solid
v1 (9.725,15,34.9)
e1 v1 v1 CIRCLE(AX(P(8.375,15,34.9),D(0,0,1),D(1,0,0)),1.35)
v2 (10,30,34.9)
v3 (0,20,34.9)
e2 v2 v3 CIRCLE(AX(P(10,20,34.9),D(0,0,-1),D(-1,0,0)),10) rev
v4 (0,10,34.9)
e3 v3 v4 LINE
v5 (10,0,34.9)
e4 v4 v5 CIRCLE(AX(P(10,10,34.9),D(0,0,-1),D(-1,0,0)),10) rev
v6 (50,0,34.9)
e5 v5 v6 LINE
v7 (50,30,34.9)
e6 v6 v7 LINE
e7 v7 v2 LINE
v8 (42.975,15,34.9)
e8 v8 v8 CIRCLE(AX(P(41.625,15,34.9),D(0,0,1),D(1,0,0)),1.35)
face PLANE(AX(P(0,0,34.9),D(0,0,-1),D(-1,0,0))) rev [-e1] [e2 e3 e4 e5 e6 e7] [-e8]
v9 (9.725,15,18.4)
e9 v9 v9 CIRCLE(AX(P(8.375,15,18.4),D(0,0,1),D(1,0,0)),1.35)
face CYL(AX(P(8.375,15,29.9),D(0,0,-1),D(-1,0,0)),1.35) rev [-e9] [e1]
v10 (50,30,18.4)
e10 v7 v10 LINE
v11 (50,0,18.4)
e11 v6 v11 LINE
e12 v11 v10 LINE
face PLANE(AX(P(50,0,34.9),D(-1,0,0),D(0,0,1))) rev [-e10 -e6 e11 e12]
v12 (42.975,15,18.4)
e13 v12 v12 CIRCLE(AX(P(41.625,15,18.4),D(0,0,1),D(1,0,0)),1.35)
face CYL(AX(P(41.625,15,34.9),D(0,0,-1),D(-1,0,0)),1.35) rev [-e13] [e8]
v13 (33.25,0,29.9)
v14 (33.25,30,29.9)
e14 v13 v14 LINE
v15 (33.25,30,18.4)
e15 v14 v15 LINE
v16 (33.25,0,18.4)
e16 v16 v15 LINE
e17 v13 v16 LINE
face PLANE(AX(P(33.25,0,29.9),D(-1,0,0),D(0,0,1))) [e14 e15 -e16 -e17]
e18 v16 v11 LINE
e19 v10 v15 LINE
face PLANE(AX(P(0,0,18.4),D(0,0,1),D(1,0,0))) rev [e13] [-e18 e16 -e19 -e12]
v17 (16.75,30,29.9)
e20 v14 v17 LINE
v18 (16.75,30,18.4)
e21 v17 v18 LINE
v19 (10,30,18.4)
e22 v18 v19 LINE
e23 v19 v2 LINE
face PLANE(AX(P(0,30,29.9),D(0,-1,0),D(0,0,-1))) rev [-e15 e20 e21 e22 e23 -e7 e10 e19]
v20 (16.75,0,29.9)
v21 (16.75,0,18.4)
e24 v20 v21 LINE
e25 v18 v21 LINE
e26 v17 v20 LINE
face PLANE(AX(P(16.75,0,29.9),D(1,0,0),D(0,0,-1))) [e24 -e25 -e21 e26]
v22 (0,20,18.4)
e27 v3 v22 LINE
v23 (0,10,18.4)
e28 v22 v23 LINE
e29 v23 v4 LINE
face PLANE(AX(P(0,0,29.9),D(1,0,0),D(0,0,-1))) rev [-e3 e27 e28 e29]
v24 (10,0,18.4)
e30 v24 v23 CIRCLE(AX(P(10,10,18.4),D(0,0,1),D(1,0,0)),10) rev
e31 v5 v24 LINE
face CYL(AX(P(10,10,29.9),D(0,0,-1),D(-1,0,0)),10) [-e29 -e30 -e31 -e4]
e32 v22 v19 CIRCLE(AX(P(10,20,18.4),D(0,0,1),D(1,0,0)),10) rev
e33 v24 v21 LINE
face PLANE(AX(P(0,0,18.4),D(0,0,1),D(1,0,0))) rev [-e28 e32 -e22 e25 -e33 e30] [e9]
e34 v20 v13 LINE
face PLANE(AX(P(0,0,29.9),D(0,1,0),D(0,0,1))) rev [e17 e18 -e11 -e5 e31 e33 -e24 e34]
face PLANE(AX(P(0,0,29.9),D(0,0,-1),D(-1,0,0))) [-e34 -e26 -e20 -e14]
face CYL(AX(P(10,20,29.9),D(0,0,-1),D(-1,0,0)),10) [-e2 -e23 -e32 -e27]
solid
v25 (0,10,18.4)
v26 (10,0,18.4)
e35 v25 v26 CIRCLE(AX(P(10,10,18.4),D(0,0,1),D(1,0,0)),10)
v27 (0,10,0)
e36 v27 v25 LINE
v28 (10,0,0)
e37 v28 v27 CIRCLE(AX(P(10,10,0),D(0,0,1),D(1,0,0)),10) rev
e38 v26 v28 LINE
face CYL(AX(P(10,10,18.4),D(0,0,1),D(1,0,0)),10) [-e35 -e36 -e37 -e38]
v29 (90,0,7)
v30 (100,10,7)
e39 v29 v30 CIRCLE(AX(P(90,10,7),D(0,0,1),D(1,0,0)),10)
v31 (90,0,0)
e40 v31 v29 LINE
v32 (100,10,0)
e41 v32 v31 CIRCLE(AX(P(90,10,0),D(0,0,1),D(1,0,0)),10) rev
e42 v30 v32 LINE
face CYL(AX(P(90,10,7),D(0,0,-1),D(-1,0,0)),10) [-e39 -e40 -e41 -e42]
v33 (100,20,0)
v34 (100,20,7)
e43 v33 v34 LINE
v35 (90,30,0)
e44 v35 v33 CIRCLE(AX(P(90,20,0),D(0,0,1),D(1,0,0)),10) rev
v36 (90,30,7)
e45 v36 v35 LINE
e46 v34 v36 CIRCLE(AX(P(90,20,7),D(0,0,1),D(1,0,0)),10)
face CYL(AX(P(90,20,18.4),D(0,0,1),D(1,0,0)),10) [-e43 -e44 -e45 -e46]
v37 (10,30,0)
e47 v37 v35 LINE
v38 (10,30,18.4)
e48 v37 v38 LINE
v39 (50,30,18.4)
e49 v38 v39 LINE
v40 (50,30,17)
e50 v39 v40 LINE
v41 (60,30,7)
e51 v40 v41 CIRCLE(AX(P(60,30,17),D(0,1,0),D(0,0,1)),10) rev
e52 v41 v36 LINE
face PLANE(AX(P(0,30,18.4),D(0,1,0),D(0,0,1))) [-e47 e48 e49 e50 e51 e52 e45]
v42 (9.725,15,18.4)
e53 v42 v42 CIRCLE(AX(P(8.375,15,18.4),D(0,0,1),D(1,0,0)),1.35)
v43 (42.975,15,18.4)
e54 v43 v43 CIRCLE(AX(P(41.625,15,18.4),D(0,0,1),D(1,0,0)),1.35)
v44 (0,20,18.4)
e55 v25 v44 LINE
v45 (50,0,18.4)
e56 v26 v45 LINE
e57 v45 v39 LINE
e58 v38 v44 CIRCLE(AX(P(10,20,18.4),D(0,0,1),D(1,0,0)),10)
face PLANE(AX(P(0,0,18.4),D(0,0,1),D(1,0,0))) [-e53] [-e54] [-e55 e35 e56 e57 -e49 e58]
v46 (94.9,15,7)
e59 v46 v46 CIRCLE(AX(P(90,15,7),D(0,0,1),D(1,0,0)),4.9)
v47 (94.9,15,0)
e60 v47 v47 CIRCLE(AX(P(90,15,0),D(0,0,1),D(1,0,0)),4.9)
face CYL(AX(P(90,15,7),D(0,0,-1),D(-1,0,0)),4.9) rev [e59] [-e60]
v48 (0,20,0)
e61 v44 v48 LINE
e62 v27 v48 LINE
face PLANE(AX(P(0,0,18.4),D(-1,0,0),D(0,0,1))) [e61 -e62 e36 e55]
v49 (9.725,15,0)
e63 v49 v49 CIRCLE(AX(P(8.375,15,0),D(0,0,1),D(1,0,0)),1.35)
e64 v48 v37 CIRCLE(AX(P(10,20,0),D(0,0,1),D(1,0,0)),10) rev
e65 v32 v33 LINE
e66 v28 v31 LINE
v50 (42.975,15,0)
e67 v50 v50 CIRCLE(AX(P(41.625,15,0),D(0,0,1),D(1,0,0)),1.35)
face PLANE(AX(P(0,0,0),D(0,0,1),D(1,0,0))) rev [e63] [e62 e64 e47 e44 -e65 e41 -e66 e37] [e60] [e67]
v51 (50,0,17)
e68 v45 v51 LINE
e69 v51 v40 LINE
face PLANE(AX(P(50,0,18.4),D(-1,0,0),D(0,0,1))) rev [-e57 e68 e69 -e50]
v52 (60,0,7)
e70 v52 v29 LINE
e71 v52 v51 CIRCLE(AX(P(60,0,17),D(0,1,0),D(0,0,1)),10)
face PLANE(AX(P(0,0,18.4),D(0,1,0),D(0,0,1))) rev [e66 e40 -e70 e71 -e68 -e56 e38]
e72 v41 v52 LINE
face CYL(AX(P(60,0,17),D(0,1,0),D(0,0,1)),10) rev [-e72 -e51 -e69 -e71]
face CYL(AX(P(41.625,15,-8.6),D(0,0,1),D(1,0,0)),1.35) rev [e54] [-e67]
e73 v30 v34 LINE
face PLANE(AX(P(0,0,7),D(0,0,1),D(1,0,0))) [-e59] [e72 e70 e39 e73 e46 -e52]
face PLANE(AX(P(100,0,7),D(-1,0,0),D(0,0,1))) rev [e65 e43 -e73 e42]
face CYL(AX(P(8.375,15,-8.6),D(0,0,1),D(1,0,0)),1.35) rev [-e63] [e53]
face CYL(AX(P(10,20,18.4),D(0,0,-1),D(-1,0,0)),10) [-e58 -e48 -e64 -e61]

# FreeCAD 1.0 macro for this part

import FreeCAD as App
import Part
import Sketcher
Q = App.Units.Quantity


def edges_at(feature, points):
    """Names of the edges that pass closest to the given points."""
    edges = feature.Shape.Edges
    near = lambda p: min(range(len(edges)), key=lambda i: edges[i].distToShape(Part.Vertex(*p))[0])
    return sorted({f"Edge{near(p) + 1}" for p in points})

doc = App.newDocument("Part")
body = doc.addObject("PartDesign::Body", "Body")

# Sketch on XY plane
sketch1 = body.newObject("Sketcher::SketchObject", "Sketch")
sketch1.AttachmentSupport = (doc.getObject("XY_Plane"), [""])
sketch1.MapMode = "FlatFace"
sketch1.addGeometry([
    Part.LineSegment(App.Vector(0, 30, 0), App.Vector(0, 0, 0)),
    Part.LineSegment(App.Vector(0, 0, 0), App.Vector(50, 0, 0)),
    Part.LineSegment(App.Vector(50, 0, 0), App.Vector(50, 30, 0)),
    Part.LineSegment(App.Vector(50, 30, 0), App.Vector(0, 30, 0)),
], False)
sketch1.addConstraint([
    Sketcher.Constraint("Coincident", 0, 2, 1, 1),
    Sketcher.Constraint("Coincident", 1, 2, 2, 1),
    Sketcher.Constraint("Coincident", 2, 2, 3, 1),
    Sketcher.Constraint("Coincident", 3, 2, 0, 1),
    Sketcher.Constraint("Vertical", 0),
    Sketcher.Constraint("Horizontal", 1),
    Sketcher.Constraint("Vertical", 2),
    Sketcher.Constraint("Horizontal", 3),
    Sketcher.Constraint("Coincident", 0, 2, -1, 1),
    Sketcher.Constraint("DistanceX", 1, 1, 1, 2, Q("50 mm")),
    Sketcher.Constraint("DistanceY", 0, 2, 0, 1, Q("30 mm")),
])
pad1 = body.newObject("PartDesign::Pad", "Pad")
pad1.Profile = sketch1
pad1.Length = 18.4

# Sketch on XY plane
sketch2 = body.newObject("Sketcher::SketchObject", "Sketch001")
sketch2.AttachmentSupport = (doc.getObject("XY_Plane"), [""])
sketch2.MapMode = "FlatFace"
sketch2.addGeometry([
    Part.LineSegment(App.Vector(0, 30, 0), App.Vector(0, 0, 0)),  # 0
    Part.LineSegment(App.Vector(0, 0, 0), App.Vector(100, 0, 0)),  # 1
    Part.LineSegment(App.Vector(100, 0, 0), App.Vector(100, 30, 0)),  # 2
    Part.LineSegment(App.Vector(100, 30, 0), App.Vector(0, 30, 0)),  # 3
    Part.Circle(App.Vector(90, 15, 0), App.Vector(0, 0, 1), 4.9),  # 4
], False)
sketch2.addConstraint([
    Sketcher.Constraint("Coincident", 0, 2, 1, 1),
    Sketcher.Constraint("Coincident", 1, 2, 2, 1),
    Sketcher.Constraint("Coincident", 2, 2, 3, 1),
    Sketcher.Constraint("Coincident", 3, 2, 0, 1),
    Sketcher.Constraint("Vertical", 0),
    Sketcher.Constraint("Horizontal", 1),
    Sketcher.Constraint("Vertical", 2),
    Sketcher.Constraint("Horizontal", 3),
    Sketcher.Constraint("Coincident", 0, 2, -1, 1),
    Sketcher.Constraint("Diameter", 4, Q("9.8 mm")),
    Sketcher.Constraint("DistanceX", 1, 1, 1, 2, Q("100 mm")),
    Sketcher.Constraint("DistanceY", 0, 2, 0, 1, Q("30 mm")),
    Sketcher.Constraint("DistanceX", -1, 1, 4, 3, Q("90 mm")),
    Sketcher.Constraint("DistanceY", -1, 1, 4, 3, Q("15 mm")),
])
pad2 = body.newObject("PartDesign::Pad", "Pad001")
pad2.Profile = sketch2
pad2.Length = 7

# Sketch on XY plane
sketch3 = body.newObject("Sketcher::SketchObject", "Sketch002")
sketch3.AttachmentSupport = (doc.getObject("XY_Plane"), [""])
sketch3.MapMode = "FlatFace"
sketch3.AttachmentOffset = App.Placement(App.Vector(0, 0, 18.4), App.Rotation())
sketch3.addGeometry([
    Part.Circle(App.Vector(8.375, 15, 0), App.Vector(0, 0, 1), 1.35),
    Part.Circle(App.Vector(41.625, 15, 0), App.Vector(0, 0, 1), 1.35),
], False)
sketch3.addConstraint([
    Sketcher.Constraint("Equal", 0, 1),
    Sketcher.Constraint("Horizontal", 0, 3, 1, 3),
    Sketcher.Constraint("Diameter", 0, Q("2.7 mm")),
    Sketcher.Constraint("DistanceY", -1, 1, 0, 3, Q("15 mm")),
    Sketcher.Constraint("DistanceX", 0, 3, 1, 3, Q("33.25 mm")),
    Sketcher.Constraint("DistanceX", -1, 1, 0, 3, Q("8.375 mm")),
])
pocket1 = body.newObject("PartDesign::Pocket", "Pocket")
pocket1.Profile = sketch3
pocket1.Length = 27
doc.recompute()

fillet = body.newObject("PartDesign::Fillet", "Fillet")
fillet.Base = (pocket1, edges_at(pocket1, [
    (100, 0, 3.5),
    (100, 30, 3.5),
    (50, 15, 7),
    (0, 0, 9.2),
    (0, 30, 9.2),
]))
fillet.Radius = 10
body2 = doc.addObject("PartDesign::Body", "Body001")

# Sketch on XY plane
sketch4 = body2.newObject("Sketcher::SketchObject", "Sketch003")
sketch4.AttachmentSupport = (doc.getObject("XY_Plane001"), [""])
sketch4.MapMode = "FlatFace"
sketch4.AttachmentOffset = App.Placement(App.Vector(0, 0, 18.4), App.Rotation())
sketch4.addGeometry([
    Part.LineSegment(App.Vector(0, 30, 0), App.Vector(0, 0, 0)),  # 0
    Part.LineSegment(App.Vector(0, 0, 0), App.Vector(16.75, 0, 0)),  # 1
    Part.LineSegment(App.Vector(16.75, 0, 0), App.Vector(16.75, 30, 0)),  # 2
    Part.LineSegment(App.Vector(16.75, 30, 0), App.Vector(0, 30, 0)),  # 3
    Part.Circle(App.Vector(8.375, 15, 0), App.Vector(0, 0, 1), 1.35),  # 4
], False)
sketch4.addConstraint([
    Sketcher.Constraint("Coincident", 0, 2, 1, 1),
    Sketcher.Constraint("Coincident", 1, 2, 2, 1),
    Sketcher.Constraint("Coincident", 2, 2, 3, 1),
    Sketcher.Constraint("Coincident", 3, 2, 0, 1),
    Sketcher.Constraint("Vertical", 0),
    Sketcher.Constraint("Horizontal", 1),
    Sketcher.Constraint("Vertical", 2),
    Sketcher.Constraint("Horizontal", 3),
    Sketcher.Constraint("Coincident", 0, 2, -1, 1),
    Sketcher.Constraint("Diameter", 4, Q("2.7 mm")),
    Sketcher.Constraint("DistanceY", 0, 2, 0, 1, Q("30 mm")),
    Sketcher.Constraint("DistanceY", -1, 1, 4, 3, Q("15 mm")),
    Sketcher.Constraint("DistanceX", 1, 1, 1, 2, Q("16.75 mm")),
    Sketcher.Constraint("DistanceX", -1, 1, 4, 3, Q("8.375 mm")),
])
pad3 = body2.newObject("PartDesign::Pad", "Pad002")
pad3.Profile = sketch4
pad3.Length = 11.5
body3 = doc.addObject("PartDesign::Body", "Body002")

# Sketch on XY plane
sketch5 = body3.newObject("Sketcher::SketchObject", "Sketch004")
sketch5.AttachmentSupport = (doc.getObject("XY_Plane002"), [""])
sketch5.MapMode = "FlatFace"
sketch5.AttachmentOffset = App.Placement(App.Vector(0, 0, 18.4), App.Rotation())
sketch5.addGeometry([
    Part.LineSegment(App.Vector(33.25, 30, 0), App.Vector(33.25, 0, 0)),  # 0
    Part.LineSegment(App.Vector(33.25, 0, 0), App.Vector(50, 0, 0)),  # 1
    Part.LineSegment(App.Vector(50, 0, 0), App.Vector(50, 30, 0)),  # 2
    Part.LineSegment(App.Vector(50, 30, 0), App.Vector(33.25, 30, 0)),  # 3
    Part.Circle(App.Vector(41.625, 15, 0), App.Vector(0, 0, 1), 1.35),  # 4
], False)
sketch5.addConstraint([
    Sketcher.Constraint("Coincident", 0, 2, 1, 1),
    Sketcher.Constraint("Coincident", 1, 2, 2, 1),
    Sketcher.Constraint("Coincident", 2, 2, 3, 1),
    Sketcher.Constraint("Coincident", 3, 2, 0, 1),
    Sketcher.Constraint("Vertical", 0),
    Sketcher.Constraint("Horizontal", 1),
    Sketcher.Constraint("Vertical", 2),
    Sketcher.Constraint("Horizontal", 3),
    Sketcher.Constraint("PointOnObject", 0, 2, -1),
    Sketcher.Constraint("Diameter", 4, Q("2.7 mm")),
    Sketcher.Constraint("DistanceY", 0, 2, 0, 1, Q("30 mm")),
    Sketcher.Constraint("DistanceY", -1, 1, 4, 3, Q("15 mm")),
    Sketcher.Constraint("DistanceX", -1, 1, 1, 2, Q("50 mm")),
    Sketcher.Constraint("DistanceX", 1, 1, 1, 2, Q("16.75 mm")),
    Sketcher.Constraint("DistanceX", -1, 1, 4, 3, Q("41.625 mm")),
])
pad4 = body3.newObject("PartDesign::Pad", "Pad003")
pad4.Profile = sketch5
pad4.Length = 11.5
body2.AllowCompound = True
doc.recompute()

boolean = body2.newObject("PartDesign::Boolean", "Boolean")
boolean.Type = "Fuse"
boolean.addObjects([body3])

# Sketch on XY plane
sketch6 = body2.newObject("Sketcher::SketchObject", "Sketch005")
sketch6.AttachmentSupport = (doc.getObject("XY_Plane001"), [""])
sketch6.MapMode = "FlatFace"
sketch6.AttachmentOffset = App.Placement(App.Vector(0, 0, 29.9), App.Rotation())
sketch6.addGeometry([
    Part.LineSegment(App.Vector(0, 30, 0), App.Vector(0, 0, 0)),  # 0
    Part.LineSegment(App.Vector(0, 0, 0), App.Vector(50, 0, 0)),  # 1
    Part.LineSegment(App.Vector(50, 0, 0), App.Vector(50, 30, 0)),  # 2
    Part.LineSegment(App.Vector(50, 30, 0), App.Vector(0, 30, 0)),  # 3
    Part.Circle(App.Vector(8.375, 15, 0), App.Vector(0, 0, 1), 1.35),  # 4
    Part.Circle(App.Vector(41.625, 15, 0), App.Vector(0, 0, 1), 1.35),  # 5
], False)
sketch6.addConstraint([
    Sketcher.Constraint("Coincident", 0, 2, 1, 1),
    Sketcher.Constraint("Coincident", 1, 2, 2, 1),
    Sketcher.Constraint("Coincident", 2, 2, 3, 1),
    Sketcher.Constraint("Coincident", 3, 2, 0, 1),
    Sketcher.Constraint("Vertical", 0),
    Sketcher.Constraint("Horizontal", 1),
    Sketcher.Constraint("Vertical", 2),
    Sketcher.Constraint("Horizontal", 3),
    Sketcher.Constraint("Coincident", 0, 2, -1, 1),
    Sketcher.Constraint("Equal", 4, 5),
    Sketcher.Constraint("Horizontal", 4, 3, 5, 3),
    Sketcher.Constraint("Diameter", 4, Q("2.7 mm")),
    Sketcher.Constraint("DistanceX", 1, 1, 1, 2, Q("50 mm")),
    Sketcher.Constraint("DistanceY", 0, 2, 0, 1, Q("30 mm")),
    Sketcher.Constraint("DistanceY", -1, 1, 4, 3, Q("15 mm")),
    Sketcher.Constraint("DistanceX", 4, 3, 5, 3, Q("33.25 mm")),
    Sketcher.Constraint("DistanceX", -1, 1, 4, 3, Q("8.375 mm")),
])
pad5 = body2.newObject("PartDesign::Pad", "Pad004")
pad5.Profile = sketch6
pad5.Length = 5
doc.recompute()

fillet2 = body2.newObject("PartDesign::Fillet", "Fillet001")
fillet2.Base = (pad5, edges_at(pad5, [(0, 0, 26.65), (0, 30, 26.65)]))
fillet2.Radius = 10

doc.recompute()
